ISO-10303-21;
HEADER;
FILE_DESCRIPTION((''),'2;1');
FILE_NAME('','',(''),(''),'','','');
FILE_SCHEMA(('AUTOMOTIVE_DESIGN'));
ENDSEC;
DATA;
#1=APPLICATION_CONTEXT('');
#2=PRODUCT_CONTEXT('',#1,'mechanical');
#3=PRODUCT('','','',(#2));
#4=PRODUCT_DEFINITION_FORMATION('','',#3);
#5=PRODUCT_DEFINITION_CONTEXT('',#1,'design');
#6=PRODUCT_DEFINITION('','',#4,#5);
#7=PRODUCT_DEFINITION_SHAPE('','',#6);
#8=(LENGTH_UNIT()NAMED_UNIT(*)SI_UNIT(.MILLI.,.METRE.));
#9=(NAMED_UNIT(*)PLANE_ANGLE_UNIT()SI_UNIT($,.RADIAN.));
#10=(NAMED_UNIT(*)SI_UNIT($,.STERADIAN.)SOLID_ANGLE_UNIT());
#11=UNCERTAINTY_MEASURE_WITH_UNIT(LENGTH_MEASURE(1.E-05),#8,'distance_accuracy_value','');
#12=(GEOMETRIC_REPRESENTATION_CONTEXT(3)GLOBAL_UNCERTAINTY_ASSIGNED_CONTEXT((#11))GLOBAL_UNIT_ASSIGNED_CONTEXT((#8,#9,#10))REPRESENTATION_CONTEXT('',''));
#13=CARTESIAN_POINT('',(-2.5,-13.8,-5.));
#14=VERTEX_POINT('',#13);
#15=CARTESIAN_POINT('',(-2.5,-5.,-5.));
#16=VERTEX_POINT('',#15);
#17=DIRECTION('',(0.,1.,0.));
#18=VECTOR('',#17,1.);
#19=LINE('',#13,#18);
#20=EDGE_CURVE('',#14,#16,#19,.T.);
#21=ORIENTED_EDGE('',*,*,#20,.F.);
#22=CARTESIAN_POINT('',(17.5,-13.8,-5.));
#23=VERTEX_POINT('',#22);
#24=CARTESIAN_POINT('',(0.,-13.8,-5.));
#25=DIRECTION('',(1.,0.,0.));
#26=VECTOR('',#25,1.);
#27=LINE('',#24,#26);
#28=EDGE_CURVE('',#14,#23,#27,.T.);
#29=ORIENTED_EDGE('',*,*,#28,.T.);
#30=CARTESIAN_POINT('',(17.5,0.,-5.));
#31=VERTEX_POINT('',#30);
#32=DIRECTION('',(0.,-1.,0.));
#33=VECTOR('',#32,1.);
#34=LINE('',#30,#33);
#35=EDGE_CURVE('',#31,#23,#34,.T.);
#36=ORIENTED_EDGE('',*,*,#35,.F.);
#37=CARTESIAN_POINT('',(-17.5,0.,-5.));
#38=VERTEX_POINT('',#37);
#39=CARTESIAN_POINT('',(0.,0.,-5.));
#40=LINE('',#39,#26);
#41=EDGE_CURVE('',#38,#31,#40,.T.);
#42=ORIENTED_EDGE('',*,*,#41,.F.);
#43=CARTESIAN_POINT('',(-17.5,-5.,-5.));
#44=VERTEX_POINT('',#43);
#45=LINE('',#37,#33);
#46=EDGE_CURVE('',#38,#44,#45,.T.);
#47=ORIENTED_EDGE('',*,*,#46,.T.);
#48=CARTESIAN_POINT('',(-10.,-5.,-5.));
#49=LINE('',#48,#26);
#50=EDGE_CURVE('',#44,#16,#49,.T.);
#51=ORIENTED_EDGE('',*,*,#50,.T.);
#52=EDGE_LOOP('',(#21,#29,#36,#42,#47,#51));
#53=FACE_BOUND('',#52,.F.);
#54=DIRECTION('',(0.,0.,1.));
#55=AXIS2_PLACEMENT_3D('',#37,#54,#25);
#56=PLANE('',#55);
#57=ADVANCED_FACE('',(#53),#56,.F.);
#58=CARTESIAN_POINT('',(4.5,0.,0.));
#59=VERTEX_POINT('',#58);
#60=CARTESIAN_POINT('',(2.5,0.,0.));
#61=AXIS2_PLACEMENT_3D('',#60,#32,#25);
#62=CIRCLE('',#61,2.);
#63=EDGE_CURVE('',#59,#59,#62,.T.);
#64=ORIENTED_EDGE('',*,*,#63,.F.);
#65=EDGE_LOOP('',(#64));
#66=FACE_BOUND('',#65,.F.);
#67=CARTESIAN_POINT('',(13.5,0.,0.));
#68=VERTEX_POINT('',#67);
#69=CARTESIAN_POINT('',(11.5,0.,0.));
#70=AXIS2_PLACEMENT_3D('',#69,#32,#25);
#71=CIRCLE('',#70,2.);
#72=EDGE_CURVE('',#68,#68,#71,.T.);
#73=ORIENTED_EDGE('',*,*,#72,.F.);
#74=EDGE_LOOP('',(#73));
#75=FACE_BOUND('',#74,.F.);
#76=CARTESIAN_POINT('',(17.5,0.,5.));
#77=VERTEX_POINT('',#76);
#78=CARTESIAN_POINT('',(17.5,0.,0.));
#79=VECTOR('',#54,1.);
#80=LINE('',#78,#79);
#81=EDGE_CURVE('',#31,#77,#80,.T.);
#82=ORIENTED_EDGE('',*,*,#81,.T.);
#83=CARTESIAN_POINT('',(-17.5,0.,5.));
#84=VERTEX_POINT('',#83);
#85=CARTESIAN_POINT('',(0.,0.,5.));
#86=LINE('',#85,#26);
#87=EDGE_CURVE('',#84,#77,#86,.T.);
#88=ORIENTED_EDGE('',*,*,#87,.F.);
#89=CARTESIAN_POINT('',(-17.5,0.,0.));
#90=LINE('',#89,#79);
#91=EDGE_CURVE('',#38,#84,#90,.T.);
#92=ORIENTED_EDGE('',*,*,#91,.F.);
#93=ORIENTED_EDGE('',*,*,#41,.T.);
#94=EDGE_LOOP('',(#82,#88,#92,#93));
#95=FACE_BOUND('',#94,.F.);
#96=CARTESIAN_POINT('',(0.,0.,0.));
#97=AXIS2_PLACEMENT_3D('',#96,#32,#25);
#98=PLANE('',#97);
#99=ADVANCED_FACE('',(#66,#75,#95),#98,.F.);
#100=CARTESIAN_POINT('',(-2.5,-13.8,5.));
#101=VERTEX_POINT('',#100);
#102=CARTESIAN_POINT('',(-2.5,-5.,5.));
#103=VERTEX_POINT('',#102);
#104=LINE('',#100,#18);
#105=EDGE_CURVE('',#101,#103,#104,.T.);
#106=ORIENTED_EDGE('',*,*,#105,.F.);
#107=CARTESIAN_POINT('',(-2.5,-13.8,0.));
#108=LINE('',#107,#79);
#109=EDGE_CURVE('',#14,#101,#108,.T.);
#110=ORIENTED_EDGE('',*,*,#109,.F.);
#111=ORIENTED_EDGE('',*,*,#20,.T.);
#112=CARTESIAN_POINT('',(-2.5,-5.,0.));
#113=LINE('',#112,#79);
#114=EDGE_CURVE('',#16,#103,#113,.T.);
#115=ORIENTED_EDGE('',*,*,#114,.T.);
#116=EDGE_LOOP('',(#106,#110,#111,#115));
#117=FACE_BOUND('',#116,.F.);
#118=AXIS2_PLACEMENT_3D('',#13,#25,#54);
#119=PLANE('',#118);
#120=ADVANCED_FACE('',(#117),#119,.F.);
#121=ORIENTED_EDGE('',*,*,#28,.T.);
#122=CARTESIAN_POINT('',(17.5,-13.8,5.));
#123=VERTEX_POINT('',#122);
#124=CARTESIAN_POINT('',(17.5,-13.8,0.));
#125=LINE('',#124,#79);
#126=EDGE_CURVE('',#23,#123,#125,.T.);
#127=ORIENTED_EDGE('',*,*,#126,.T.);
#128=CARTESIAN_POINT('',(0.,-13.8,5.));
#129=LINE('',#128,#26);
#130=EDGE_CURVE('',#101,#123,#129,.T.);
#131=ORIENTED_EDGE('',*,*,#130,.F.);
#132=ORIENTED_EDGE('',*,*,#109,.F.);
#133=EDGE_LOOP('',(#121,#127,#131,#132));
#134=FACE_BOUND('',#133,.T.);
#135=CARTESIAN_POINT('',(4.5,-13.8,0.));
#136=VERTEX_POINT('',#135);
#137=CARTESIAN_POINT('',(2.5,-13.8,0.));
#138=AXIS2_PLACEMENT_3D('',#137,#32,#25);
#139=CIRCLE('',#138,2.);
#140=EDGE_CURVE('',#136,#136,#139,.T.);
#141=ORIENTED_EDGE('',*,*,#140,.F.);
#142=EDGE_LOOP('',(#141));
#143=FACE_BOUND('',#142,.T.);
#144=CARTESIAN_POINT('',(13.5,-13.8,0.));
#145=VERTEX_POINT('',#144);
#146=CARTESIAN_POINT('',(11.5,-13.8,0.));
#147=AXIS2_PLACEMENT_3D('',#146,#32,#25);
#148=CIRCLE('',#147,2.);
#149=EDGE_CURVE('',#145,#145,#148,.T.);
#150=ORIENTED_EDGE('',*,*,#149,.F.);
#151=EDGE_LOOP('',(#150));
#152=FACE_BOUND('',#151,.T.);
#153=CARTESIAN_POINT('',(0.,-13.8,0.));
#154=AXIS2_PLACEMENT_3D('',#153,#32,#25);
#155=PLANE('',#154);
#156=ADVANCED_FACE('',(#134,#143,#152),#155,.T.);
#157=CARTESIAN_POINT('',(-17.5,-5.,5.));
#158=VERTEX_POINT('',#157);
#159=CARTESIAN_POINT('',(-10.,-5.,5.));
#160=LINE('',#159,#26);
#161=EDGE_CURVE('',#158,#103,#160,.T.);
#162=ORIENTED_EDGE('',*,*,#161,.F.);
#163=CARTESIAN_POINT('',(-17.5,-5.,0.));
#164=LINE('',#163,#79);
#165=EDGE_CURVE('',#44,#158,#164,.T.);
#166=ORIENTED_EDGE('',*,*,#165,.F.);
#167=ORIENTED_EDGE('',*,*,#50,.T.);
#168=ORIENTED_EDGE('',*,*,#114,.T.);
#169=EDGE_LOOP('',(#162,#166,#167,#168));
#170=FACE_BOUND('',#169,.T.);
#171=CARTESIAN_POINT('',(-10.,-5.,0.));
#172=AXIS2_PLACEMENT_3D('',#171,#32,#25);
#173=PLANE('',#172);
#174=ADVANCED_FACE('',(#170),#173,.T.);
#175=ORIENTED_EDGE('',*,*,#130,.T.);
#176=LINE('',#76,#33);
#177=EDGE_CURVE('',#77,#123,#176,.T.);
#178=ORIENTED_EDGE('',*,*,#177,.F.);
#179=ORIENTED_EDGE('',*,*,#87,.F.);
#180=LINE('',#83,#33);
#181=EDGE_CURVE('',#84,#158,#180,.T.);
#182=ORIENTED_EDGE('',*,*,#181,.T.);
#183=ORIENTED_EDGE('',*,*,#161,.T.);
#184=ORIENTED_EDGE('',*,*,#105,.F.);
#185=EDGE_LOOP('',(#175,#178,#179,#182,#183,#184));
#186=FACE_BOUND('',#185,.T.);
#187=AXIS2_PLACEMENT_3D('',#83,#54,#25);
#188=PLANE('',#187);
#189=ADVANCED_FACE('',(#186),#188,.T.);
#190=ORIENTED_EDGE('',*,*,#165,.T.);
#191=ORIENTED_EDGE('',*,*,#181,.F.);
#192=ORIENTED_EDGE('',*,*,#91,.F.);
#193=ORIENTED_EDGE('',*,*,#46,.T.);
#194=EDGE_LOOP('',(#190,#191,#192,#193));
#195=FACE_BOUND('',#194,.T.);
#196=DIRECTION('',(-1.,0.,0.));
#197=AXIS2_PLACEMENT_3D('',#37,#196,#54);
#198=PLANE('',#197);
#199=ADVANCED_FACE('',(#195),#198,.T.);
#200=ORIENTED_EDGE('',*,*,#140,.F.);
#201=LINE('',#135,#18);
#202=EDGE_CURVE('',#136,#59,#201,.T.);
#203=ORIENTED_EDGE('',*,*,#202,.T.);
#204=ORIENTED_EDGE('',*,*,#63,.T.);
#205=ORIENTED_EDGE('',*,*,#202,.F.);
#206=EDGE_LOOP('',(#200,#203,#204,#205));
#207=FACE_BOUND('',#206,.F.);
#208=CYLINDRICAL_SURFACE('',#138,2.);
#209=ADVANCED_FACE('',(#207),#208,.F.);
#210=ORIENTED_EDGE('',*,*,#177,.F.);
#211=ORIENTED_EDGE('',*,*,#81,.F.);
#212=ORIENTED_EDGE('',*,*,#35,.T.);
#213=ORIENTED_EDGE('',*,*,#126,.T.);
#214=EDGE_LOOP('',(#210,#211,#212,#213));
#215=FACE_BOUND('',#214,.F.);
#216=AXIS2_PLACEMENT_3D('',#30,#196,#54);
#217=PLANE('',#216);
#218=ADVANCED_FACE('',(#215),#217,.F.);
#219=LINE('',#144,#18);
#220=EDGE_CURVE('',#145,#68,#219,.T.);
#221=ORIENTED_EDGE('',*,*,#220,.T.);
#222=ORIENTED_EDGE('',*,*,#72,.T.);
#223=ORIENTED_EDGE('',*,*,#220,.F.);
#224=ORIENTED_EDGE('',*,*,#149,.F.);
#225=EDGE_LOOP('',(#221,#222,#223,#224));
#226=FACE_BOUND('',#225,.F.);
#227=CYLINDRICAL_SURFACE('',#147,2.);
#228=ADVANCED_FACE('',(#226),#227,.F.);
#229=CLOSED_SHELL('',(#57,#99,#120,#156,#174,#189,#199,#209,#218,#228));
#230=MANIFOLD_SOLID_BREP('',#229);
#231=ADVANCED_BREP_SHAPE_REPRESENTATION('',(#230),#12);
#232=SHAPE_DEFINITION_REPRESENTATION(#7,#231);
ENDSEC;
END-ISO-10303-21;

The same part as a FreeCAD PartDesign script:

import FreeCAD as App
import Part
import Sketcher

V = App.Vector
Q = App.Units.Quantity


def add_polygon(sketch, points):
    """Adds a closed chain of lines whose ends are joined by coincident constraints."""
    first, n = sketch.GeometryCount, len(points)
    for a, b in zip(points, points[1:] + points[:1]):
        sketch.addGeometry(Part.LineSegment(App.Vector(*a, 0), App.Vector(*b, 0)), False)
    for i in range(n):
        sketch.addConstraint(Sketcher.Constraint("Coincident", first + i, 2, first + (i + 1) % n, 1))

doc = App.newDocument("Part")
body = doc.addObject("PartDesign::Body", "Body")

# Sketch on XZ plane
sketch1 = doc.addObject("Sketcher::SketchObject", "Sketch")
body.addObject(sketch1)
sketch1.AttachmentSupport = (doc.XZ_Plane, [""])
sketch1.MapMode = "FlatFace"
add_polygon(sketch1, [(-18, 5), (-18, -5), (18, -5), (18, 5)])  # lines 0-3
sketch1.addConstraint(Sketcher.Constraint("Vertical", 0))
sketch1.addConstraint(Sketcher.Constraint("Horizontal", 1))
sketch1.addConstraint(Sketcher.Constraint("Vertical", 2))
sketch1.addConstraint(Sketcher.Constraint("Horizontal", 3))
sketch1.addConstraint(Sketcher.Constraint("Symmetric", 0, 2, 2, 2, -1, 1))
sketch1.addConstraint(Sketcher.Constraint("DistanceX", 1, 1, 1, 2, Q("35 mm")))
sketch1.addConstraint(Sketcher.Constraint("DistanceY", 0, 2, 0, 1, Q("10 mm")))
pad1 = doc.addObject("PartDesign::Pad", "Pad")
body.addObject(pad1)
pad1.Profile = sketch1
pad1.Length = 13.8

# Sketch on XZ plane
sketch2 = doc.addObject("Sketcher::SketchObject", "Sketch001")
body.addObject(sketch2)
sketch2.AttachmentSupport = (doc.XZ_Plane, [""])
sketch2.MapMode = "FlatFace"
sketch2.AttachmentOffset = App.Placement(V(0, 0, 13.8), App.Rotation())
add_polygon(sketch2, [(-18, 5), (-18, -5), (-2, -5), (-2, 5)])  # lines 0-3
sketch2.addConstraint(Sketcher.Constraint("Vertical", 0))
sketch2.addConstraint(Sketcher.Constraint("Horizontal", 1))
sketch2.addConstraint(Sketcher.Constraint("Vertical", 2))
sketch2.addConstraint(Sketcher.Constraint("Horizontal", 3))
sketch2.addConstraint(Sketcher.Constraint("DistanceX", 1, 1, 1, 2, Q("15 mm")))
sketch2.addConstraint(Sketcher.Constraint("DistanceY", 0, 2, 0, 1, Q("10 mm")))
sketch2.addConstraint(Sketcher.Constraint("DistanceY", 0, 2, -1, 1, Q("5 mm")))
sketch2.addConstraint(Sketcher.Constraint("DistanceX", 0, 2, -1, 1, Q("17.5 mm")))
pocket1 = doc.addObject("PartDesign::Pocket", "Pocket")
body.addObject(pocket1)
pocket1.Profile = sketch2
pocket1.Length = 8.8

# Sketch on XZ plane
sketch3 = doc.addObject("Sketcher::SketchObject", "Sketch002")
body.addObject(sketch3)
sketch3.AttachmentSupport = (doc.XZ_Plane, [""])
sketch3.MapMode = "FlatFace"
sketch3.AttachmentOffset = App.Placement(V(0, 0, 13.8), App.Rotation())
sketch3.addGeometry(Part.Circle(V(2.5, 0, 0), V(0, 0, 1), 2), False)
sketch3.addGeometry(Part.Circle(V(11.5, 0, 0), V(0, 0, 1), 2), False)
sketch3.addConstraint(Sketcher.Constraint("Equal", 0, 1))
sketch3.addConstraint(Sketcher.Constraint("PointOnObject", 0, 3, -1))
sketch3.addConstraint(Sketcher.Constraint("PointOnObject", 1, 3, -1))
sketch3.addConstraint(Sketcher.Constraint("Diameter", 0, Q("4 mm")))
sketch3.addConstraint(Sketcher.Constraint("DistanceX", 0, 3, 1, 3, Q("9 mm")))
sketch3.addConstraint(Sketcher.Constraint("DistanceX", -1, 1, 0, 3, Q("2.5 mm")))
pocket2 = doc.addObject("PartDesign::Pocket", "Pocket001")
body.addObject(pocket2)
pocket2.Profile = sketch3
pocket2.Length = 13.8

doc.recompute()
